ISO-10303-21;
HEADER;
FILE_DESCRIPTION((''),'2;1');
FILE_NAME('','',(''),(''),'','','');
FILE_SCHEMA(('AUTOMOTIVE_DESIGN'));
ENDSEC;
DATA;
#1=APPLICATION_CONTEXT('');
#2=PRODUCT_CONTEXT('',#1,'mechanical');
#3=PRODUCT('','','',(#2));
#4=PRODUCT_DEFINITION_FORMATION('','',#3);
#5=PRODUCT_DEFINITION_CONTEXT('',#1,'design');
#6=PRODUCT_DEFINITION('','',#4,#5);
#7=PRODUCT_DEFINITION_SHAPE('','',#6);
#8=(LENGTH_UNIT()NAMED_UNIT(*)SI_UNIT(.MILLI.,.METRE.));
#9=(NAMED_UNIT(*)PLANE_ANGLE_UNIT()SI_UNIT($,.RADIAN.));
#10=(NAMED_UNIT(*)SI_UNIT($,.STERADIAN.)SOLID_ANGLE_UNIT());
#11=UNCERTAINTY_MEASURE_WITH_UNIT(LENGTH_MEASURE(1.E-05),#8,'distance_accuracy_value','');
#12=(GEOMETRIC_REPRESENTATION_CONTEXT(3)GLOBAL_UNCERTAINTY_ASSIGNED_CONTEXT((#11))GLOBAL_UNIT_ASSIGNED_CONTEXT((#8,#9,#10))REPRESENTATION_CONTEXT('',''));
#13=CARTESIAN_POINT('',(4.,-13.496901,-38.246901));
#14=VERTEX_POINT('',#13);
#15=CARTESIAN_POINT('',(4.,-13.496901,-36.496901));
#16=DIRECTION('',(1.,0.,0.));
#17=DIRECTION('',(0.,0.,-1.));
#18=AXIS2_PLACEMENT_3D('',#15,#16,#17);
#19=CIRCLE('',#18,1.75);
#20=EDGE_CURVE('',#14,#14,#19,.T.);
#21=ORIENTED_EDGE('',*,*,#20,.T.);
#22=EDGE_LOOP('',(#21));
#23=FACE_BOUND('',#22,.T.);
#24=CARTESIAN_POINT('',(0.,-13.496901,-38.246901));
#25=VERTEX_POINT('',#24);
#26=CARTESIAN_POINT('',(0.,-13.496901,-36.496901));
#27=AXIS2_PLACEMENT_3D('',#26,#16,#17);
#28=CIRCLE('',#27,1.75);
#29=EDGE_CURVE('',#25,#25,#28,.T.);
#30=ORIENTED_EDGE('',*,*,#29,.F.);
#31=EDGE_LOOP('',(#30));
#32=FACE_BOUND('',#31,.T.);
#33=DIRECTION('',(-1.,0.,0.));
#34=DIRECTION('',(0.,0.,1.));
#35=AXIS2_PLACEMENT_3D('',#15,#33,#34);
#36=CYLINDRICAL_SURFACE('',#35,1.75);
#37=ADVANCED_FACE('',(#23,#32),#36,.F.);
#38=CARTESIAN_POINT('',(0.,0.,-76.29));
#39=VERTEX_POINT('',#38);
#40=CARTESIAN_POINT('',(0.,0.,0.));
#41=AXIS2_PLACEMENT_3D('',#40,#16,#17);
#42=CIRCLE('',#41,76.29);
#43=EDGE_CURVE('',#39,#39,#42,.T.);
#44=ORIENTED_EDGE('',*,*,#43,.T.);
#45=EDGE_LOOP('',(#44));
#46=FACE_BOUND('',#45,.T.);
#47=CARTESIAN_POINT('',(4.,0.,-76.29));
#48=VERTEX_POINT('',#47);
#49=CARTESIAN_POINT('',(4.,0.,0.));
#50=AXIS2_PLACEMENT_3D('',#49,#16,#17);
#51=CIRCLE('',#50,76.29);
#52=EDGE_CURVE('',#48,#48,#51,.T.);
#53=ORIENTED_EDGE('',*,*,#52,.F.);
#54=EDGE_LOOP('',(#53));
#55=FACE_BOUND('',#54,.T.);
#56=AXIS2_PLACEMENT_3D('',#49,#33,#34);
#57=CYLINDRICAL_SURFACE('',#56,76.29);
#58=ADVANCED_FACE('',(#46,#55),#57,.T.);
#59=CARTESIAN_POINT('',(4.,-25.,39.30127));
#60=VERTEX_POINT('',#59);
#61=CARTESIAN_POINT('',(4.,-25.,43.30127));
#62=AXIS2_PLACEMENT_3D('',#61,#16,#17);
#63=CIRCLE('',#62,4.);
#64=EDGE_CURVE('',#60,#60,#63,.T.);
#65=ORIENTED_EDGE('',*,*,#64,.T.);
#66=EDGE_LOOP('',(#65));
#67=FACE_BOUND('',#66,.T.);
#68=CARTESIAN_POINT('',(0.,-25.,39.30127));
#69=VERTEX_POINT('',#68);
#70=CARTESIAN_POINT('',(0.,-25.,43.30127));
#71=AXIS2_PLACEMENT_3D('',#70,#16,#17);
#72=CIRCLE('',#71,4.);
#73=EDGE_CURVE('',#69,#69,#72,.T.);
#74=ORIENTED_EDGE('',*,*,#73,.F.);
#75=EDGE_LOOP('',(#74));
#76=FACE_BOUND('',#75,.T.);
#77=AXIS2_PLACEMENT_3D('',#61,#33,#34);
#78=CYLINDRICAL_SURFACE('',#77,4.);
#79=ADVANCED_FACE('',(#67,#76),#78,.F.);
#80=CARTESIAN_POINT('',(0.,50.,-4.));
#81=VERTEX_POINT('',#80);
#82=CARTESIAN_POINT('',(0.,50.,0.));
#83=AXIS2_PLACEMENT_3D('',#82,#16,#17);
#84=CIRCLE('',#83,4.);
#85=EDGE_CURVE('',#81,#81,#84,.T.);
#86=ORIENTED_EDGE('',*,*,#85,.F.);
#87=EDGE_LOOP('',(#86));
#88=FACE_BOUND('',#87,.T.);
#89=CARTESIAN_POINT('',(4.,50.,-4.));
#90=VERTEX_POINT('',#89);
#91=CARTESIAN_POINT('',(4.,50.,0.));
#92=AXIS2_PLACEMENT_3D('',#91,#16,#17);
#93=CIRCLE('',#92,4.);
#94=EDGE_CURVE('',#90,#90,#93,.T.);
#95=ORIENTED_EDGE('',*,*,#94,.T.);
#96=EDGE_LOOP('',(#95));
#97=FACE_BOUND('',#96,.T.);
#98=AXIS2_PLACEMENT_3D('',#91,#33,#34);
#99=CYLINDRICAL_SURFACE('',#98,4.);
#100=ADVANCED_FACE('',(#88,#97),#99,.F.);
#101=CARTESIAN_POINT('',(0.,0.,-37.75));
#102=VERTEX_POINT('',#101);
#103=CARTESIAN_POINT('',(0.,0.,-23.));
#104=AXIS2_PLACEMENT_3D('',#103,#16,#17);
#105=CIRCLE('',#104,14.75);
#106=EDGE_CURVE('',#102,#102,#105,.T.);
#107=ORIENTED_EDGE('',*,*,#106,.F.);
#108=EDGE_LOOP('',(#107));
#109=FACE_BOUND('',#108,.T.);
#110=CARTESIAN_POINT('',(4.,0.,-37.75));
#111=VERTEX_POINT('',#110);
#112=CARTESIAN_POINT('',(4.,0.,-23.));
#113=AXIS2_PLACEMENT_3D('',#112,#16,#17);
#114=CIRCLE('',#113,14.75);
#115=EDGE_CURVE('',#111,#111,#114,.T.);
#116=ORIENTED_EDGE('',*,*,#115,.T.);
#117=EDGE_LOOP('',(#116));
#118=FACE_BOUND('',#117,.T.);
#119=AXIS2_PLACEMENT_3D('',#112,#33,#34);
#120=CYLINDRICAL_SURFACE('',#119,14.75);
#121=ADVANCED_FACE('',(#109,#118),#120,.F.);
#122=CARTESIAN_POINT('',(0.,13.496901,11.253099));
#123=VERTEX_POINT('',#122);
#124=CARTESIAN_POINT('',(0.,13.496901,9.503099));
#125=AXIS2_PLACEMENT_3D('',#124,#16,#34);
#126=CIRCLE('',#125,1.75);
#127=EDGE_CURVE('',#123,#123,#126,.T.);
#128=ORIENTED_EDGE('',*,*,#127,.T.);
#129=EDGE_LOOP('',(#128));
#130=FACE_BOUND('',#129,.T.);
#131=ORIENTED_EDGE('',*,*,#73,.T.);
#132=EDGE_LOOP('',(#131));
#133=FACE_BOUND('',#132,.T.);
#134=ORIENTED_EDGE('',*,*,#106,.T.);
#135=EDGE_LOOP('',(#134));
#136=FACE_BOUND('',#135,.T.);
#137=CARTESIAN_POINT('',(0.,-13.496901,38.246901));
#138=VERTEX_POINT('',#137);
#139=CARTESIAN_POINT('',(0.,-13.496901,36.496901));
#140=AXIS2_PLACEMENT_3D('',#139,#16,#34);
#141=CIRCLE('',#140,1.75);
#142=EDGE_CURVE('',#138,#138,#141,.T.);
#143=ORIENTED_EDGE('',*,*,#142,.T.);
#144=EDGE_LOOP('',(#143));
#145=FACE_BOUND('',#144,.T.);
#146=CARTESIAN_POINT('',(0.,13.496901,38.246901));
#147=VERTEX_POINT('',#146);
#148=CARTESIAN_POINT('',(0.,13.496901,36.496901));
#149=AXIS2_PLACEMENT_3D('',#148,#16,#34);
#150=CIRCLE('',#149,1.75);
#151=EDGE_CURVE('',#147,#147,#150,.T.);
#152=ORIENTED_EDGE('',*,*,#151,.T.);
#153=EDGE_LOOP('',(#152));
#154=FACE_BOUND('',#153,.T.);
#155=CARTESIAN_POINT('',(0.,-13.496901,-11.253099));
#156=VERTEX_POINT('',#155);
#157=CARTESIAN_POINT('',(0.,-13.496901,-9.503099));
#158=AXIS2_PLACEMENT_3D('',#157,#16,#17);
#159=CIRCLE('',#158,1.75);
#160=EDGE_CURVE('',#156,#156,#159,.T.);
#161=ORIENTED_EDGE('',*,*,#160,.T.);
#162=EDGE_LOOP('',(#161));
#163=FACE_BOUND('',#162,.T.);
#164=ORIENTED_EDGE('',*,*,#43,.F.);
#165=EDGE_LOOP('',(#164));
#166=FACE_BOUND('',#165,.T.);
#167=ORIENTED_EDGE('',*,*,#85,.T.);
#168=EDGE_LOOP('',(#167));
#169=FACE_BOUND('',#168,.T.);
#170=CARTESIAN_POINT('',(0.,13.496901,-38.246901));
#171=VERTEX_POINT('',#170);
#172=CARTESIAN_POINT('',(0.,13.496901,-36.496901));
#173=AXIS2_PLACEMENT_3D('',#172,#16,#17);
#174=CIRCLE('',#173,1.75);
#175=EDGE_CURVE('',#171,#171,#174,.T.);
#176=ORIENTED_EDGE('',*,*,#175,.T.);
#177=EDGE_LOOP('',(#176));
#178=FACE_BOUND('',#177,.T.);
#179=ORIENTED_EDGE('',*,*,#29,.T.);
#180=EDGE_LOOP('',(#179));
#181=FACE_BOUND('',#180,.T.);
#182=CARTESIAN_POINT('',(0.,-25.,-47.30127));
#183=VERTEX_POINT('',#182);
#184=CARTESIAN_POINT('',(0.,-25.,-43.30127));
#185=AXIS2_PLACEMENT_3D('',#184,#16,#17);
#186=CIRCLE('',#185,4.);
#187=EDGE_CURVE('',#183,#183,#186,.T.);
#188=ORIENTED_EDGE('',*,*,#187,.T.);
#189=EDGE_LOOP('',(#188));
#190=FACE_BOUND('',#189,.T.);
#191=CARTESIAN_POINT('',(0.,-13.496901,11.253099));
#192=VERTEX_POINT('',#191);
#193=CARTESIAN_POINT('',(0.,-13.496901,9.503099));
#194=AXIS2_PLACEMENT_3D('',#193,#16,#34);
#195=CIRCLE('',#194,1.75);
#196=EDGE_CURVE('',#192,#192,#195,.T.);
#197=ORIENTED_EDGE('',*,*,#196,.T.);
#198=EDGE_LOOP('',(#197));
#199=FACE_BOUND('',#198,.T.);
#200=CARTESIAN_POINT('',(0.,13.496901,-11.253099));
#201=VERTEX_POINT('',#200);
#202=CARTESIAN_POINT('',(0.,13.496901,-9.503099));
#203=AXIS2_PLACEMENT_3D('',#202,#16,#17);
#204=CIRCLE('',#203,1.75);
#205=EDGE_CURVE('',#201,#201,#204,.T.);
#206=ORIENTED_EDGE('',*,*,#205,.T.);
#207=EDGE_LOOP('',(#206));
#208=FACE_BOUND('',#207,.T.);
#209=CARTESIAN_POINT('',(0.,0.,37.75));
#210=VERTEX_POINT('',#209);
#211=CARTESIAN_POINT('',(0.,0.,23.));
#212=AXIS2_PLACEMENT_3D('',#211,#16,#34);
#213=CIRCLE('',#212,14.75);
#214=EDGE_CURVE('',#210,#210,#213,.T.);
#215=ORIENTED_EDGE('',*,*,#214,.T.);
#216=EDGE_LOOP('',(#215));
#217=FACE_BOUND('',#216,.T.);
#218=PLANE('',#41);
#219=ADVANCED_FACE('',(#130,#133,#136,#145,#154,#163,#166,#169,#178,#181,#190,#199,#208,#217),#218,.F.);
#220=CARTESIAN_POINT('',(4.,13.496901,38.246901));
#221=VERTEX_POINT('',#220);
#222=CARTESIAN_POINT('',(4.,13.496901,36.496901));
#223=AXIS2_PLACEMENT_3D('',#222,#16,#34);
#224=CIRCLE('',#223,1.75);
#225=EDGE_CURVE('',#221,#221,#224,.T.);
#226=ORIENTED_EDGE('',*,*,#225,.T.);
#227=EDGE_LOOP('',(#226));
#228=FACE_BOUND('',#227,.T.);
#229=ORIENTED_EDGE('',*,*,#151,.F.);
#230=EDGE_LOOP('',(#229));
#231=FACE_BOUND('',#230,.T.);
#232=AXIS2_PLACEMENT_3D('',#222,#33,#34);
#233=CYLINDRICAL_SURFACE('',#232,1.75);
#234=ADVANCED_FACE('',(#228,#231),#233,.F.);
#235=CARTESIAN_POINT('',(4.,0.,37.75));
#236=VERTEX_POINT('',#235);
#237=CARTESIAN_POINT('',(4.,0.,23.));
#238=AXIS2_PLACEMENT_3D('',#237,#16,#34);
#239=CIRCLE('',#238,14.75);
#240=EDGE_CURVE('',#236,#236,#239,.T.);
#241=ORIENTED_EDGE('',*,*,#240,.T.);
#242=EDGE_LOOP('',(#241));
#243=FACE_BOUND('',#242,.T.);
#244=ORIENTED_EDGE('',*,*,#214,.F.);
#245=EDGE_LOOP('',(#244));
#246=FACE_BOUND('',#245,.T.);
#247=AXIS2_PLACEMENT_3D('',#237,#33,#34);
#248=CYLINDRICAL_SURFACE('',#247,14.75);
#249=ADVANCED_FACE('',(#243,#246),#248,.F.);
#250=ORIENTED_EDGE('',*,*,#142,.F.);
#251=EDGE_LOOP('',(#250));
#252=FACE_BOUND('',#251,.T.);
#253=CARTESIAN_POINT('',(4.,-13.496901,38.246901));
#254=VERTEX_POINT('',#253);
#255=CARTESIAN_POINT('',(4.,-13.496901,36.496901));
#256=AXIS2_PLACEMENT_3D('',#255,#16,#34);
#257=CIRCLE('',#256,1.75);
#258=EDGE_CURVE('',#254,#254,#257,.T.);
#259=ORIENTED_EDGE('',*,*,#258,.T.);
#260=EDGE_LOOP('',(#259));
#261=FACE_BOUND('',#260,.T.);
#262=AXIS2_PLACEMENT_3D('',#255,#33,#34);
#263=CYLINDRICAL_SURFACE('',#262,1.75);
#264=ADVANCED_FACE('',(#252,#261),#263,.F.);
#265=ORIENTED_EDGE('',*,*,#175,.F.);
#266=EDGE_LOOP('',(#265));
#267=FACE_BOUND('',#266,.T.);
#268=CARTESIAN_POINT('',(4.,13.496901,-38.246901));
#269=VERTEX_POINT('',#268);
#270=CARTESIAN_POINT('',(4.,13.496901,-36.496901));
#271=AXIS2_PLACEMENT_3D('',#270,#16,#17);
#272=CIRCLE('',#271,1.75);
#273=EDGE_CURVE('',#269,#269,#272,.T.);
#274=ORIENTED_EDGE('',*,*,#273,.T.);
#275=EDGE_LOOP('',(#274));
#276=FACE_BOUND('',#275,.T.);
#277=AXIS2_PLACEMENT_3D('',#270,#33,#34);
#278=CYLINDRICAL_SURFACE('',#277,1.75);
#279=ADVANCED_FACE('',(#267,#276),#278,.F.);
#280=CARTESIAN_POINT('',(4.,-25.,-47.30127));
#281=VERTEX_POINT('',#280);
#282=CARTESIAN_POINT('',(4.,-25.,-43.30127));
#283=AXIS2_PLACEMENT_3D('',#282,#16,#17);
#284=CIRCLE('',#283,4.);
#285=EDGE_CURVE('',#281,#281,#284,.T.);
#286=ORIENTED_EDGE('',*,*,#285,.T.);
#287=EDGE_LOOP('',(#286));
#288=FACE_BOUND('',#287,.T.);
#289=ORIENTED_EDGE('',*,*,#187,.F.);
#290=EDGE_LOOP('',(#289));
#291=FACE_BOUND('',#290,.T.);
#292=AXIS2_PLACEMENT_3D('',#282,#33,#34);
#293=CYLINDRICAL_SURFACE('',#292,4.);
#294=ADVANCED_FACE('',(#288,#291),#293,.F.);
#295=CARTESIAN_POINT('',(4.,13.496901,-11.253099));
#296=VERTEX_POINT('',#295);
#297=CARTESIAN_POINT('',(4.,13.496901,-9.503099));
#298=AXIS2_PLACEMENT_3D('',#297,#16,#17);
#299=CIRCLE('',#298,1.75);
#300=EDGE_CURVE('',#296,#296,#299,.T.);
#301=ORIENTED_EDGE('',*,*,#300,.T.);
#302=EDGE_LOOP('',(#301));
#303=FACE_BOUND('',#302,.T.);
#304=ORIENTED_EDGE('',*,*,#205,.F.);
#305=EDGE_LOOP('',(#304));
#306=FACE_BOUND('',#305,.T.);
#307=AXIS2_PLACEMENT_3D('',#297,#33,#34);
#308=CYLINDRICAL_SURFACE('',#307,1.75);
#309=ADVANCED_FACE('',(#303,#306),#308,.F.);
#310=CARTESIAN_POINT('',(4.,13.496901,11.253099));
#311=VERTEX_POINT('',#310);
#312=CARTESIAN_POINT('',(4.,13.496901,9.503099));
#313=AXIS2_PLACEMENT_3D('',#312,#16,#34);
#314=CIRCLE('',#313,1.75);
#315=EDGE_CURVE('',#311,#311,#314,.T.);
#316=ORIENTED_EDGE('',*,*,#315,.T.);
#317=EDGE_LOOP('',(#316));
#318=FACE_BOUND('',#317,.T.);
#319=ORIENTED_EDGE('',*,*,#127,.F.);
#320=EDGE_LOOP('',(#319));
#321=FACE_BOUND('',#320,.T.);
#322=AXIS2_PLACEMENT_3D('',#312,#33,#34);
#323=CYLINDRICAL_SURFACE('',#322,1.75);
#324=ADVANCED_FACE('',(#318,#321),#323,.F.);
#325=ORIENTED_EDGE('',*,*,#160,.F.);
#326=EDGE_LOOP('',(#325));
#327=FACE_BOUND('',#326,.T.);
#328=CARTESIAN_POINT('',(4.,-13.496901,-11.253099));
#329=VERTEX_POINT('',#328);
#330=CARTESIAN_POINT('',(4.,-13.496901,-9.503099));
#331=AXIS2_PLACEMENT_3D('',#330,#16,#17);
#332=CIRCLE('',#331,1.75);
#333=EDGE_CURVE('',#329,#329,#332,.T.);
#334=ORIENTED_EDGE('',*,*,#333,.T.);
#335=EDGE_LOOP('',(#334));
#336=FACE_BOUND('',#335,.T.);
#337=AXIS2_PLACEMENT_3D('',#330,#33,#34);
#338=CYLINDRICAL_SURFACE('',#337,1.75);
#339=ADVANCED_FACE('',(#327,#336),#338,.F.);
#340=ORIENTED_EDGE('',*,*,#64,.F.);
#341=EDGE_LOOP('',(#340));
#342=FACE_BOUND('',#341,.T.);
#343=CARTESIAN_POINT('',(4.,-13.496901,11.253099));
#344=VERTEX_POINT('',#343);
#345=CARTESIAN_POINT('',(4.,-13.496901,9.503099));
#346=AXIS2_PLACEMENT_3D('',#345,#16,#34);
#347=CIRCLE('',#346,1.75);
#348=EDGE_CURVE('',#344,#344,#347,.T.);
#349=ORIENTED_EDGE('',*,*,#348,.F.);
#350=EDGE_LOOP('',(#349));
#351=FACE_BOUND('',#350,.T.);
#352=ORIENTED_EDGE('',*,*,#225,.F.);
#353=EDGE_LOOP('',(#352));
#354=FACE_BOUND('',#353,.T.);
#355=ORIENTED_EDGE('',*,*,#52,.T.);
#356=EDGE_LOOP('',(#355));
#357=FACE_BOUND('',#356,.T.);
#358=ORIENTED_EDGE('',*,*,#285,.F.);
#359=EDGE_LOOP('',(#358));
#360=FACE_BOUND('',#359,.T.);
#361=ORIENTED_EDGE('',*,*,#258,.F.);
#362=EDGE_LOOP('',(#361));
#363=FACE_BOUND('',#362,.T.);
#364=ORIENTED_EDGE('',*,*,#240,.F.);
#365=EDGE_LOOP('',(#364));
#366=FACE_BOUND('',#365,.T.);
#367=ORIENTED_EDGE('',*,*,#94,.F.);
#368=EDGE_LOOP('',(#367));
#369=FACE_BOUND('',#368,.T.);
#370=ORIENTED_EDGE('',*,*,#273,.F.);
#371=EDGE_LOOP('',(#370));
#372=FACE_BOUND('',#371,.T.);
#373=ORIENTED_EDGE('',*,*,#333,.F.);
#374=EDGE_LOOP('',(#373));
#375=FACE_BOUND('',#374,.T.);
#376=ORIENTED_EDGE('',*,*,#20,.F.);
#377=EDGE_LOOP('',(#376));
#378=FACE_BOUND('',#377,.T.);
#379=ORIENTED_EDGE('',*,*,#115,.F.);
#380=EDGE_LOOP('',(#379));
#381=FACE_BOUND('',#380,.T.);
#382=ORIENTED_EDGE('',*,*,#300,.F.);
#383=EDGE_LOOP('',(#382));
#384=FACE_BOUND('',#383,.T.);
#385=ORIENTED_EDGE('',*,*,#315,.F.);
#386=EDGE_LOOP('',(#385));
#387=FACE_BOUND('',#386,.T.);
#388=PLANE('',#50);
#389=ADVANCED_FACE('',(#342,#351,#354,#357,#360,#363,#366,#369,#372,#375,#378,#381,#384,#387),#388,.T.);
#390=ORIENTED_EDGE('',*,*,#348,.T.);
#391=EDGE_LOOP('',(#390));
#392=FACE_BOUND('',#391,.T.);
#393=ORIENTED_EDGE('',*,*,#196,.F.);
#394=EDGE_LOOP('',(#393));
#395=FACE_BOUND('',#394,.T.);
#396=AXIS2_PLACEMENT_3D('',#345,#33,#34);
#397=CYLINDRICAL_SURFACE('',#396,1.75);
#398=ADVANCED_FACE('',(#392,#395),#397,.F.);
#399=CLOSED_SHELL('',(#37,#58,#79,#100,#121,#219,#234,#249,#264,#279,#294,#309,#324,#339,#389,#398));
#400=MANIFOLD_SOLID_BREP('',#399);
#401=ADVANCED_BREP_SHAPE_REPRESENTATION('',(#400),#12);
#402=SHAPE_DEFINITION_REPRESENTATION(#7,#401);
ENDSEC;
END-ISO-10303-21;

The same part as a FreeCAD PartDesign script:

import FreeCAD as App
import Part
import Sketcher

V = App.Vector

doc = App.newDocument("Part")
params = doc.addObject("Spreadsheet::Sheet", "Params")
for row, (alias, value) in enumerate([
    ("sketch1_diameter", "8 mm"),
    ("sketch1_diameter2", "3.5 mm"),
    ("sketch1_diameter3", "29.5 mm"),
    ("sketch1_diameter4", "152.58 mm"),
    ("pad1_length", "4 mm"),
], start=1):
    params.set(f"A{row}", alias)
    params.set(f"B{row}", "=" + value)
    params.setAlias(f"B{row}", alias)

body = doc.addObject("PartDesign::Body", "Body")

sketch1 = doc.addObject("Sketcher::SketchObject", "Sketch")
body.addObject(sketch1)
sketch1.AttachmentSupport = (doc.YZ_Plane, [""])
sketch1.MapMode = "FlatFace"
sketch1.addGeometry(Part.Circle(V(0, 0, 0), V(0, 0, 1), 76.29), False)
sketch1.addGeometry(Part.Circle(V(-25, 43.30127, 0), V(0, 0, 1), 4), False)
sketch1.addGeometry(Part.Circle(V(-13.496901, 36.496901, 0), V(0, 0, 1), 1.75), False)
sketch1.addGeometry(Part.Circle(V(-13.496901, 9.503099, 0), V(0, 0, 1), 1.75), False)
sketch1.addGeometry(Part.Circle(V(0, 23, 0), V(0, 0, 1), 14.75), False)
sketch1.addGeometry(Part.Circle(V(-13.496901, -9.503099, 0), V(0, 0, 1), 1.75), False)
sketch1.addGeometry(Part.Circle(V(-25, -43.30127, 0), V(0, 0, 1), 4), False)
sketch1.addGeometry(Part.Circle(V(-13.496901, -36.496901, 0), V(0, 0, 1), 1.75), False)
sketch1.addGeometry(Part.Circle(V(0, -23, 0), V(0, 0, 1), 14.75), False)
sketch1.addGeometry(Part.Circle(V(13.496901, 36.496901, 0), V(0, 0, 1), 1.75), False)
sketch1.addGeometry(Part.Circle(V(13.496901, 9.503099, 0), V(0, 0, 1), 1.75), False)
sketch1.addGeometry(Part.Circle(V(13.496901, -9.503099, 0), V(0, 0, 1), 1.75), False)
sketch1.addGeometry(Part.Circle(V(13.496901, -36.496901, 0), V(0, 0, 1), 1.75), False)
sketch1.addGeometry(Part.Circle(V(50, 0, 0), V(0, 0, 1), 4), False)
sketch1.addConstraint(Sketcher.Constraint("Coincident", 0, 3, -1, 1))
sketch1.addConstraint(Sketcher.Constraint("Equal", 2, 3))
sketch1.addConstraint(Sketcher.Constraint("Equal", 3, 5))
sketch1.addConstraint(Sketcher.Constraint("Equal", 1, 6))
sketch1.addConstraint(Sketcher.Constraint("Equal", 5, 7))
sketch1.addConstraint(Sketcher.Constraint("Equal", 4, 8))
sketch1.addConstraint(Sketcher.Constraint("Equal", 7, 9))
sketch1.addConstraint(Sketcher.Constraint("Equal", 9, 10))
sketch1.addConstraint(Sketcher.Constraint("Equal", 10, 11))
sketch1.addConstraint(Sketcher.Constraint("Equal", 11, 12))
sketch1.addConstraint(Sketcher.Constraint("Equal", 6, 13))
sketch1.addConstraint(Sketcher.Constraint("Symmetric", 4, 3, 8, 3, -1, 1))
sketch1.addConstraint(Sketcher.Constraint("Symmetric", 7, 3, 9, 3, -1, 1))
sketch1.addConstraint(Sketcher.Constraint("Symmetric", 5, 3, 10, 3, -1, 1))
sketch1.addConstraint(Sketcher.Constraint("Symmetric", 3, 3, 11, 3, -1, 1))
sketch1.addConstraint(Sketcher.Constraint("Symmetric", 2, 3, 12, 3, -1, 1))
sketch1.addConstraint(Sketcher.Constraint("Symmetric", 2, 3, 9, 3, -2))
sketch1.addConstraint(Sketcher.Constraint("Symmetric", 3, 3, 10, 3, -2))
sketch1.addConstraint(Sketcher.Constraint("Symmetric", 1, 3, 6, 3, -1))
sketch1.addConstraint(Sketcher.Constraint("PointOnObject", 4, 3, -2))
sketch1.addConstraint(Sketcher.Constraint("PointOnObject", 13, 3, -1))
sketch1.addConstraint(Sketcher.Constraint("Vertical", 2, 3, 3, 3))
sketch1.addConstraint(Sketcher.Constraint("Diameter", 1, 8.0))
sketch1.addConstraint(Sketcher.Constraint("Diameter", 2, 3.5))
sketch1.addConstraint(Sketcher.Constraint("Diameter", 4, 29.5))
sketch1.addConstraint(Sketcher.Constraint("Diameter", 0, 152.58))
sketch1.addConstraint(Sketcher.Constraint("DistanceX", 1, 3, -1, 1, 25.0))
sketch1.addConstraint(Sketcher.Constraint("DistanceY", -1, 1, 4, 3, 23.0))
sketch1.addConstraint(Sketcher.Constraint("DistanceX", -1, 1, 13, 3, 50.0))
sketch1.addConstraint(Sketcher.Constraint("DistanceY", 5, 3, 2, 3, 46.0))
sketch1.addConstraint(Sketcher.Constraint("DistanceX", 2, 3, -1, 1, 13.496901))
sketch1.addConstraint(Sketcher.Constraint("DistanceY", -1, 1, 2, 3, 36.496901))
sketch1.addConstraint(Sketcher.Constraint("DistanceY", -1, 1, 1, 3, 43.30127))
sketch1.setExpression("Constraints[22]", "Params.sketch1_diameter")
sketch1.setExpression("Constraints[23]", "Params.sketch1_diameter2")
sketch1.setExpression("Constraints[24]", "Params.sketch1_diameter3")
sketch1.setExpression("Constraints[25]", "Params.sketch1_diameter4")
pad1 = doc.addObject("PartDesign::Pad", "Pad")
body.addObject(pad1)
pad1.Profile = sketch1
pad1.setExpression("Length", "Params.pad1_length")

doc.recompute()
